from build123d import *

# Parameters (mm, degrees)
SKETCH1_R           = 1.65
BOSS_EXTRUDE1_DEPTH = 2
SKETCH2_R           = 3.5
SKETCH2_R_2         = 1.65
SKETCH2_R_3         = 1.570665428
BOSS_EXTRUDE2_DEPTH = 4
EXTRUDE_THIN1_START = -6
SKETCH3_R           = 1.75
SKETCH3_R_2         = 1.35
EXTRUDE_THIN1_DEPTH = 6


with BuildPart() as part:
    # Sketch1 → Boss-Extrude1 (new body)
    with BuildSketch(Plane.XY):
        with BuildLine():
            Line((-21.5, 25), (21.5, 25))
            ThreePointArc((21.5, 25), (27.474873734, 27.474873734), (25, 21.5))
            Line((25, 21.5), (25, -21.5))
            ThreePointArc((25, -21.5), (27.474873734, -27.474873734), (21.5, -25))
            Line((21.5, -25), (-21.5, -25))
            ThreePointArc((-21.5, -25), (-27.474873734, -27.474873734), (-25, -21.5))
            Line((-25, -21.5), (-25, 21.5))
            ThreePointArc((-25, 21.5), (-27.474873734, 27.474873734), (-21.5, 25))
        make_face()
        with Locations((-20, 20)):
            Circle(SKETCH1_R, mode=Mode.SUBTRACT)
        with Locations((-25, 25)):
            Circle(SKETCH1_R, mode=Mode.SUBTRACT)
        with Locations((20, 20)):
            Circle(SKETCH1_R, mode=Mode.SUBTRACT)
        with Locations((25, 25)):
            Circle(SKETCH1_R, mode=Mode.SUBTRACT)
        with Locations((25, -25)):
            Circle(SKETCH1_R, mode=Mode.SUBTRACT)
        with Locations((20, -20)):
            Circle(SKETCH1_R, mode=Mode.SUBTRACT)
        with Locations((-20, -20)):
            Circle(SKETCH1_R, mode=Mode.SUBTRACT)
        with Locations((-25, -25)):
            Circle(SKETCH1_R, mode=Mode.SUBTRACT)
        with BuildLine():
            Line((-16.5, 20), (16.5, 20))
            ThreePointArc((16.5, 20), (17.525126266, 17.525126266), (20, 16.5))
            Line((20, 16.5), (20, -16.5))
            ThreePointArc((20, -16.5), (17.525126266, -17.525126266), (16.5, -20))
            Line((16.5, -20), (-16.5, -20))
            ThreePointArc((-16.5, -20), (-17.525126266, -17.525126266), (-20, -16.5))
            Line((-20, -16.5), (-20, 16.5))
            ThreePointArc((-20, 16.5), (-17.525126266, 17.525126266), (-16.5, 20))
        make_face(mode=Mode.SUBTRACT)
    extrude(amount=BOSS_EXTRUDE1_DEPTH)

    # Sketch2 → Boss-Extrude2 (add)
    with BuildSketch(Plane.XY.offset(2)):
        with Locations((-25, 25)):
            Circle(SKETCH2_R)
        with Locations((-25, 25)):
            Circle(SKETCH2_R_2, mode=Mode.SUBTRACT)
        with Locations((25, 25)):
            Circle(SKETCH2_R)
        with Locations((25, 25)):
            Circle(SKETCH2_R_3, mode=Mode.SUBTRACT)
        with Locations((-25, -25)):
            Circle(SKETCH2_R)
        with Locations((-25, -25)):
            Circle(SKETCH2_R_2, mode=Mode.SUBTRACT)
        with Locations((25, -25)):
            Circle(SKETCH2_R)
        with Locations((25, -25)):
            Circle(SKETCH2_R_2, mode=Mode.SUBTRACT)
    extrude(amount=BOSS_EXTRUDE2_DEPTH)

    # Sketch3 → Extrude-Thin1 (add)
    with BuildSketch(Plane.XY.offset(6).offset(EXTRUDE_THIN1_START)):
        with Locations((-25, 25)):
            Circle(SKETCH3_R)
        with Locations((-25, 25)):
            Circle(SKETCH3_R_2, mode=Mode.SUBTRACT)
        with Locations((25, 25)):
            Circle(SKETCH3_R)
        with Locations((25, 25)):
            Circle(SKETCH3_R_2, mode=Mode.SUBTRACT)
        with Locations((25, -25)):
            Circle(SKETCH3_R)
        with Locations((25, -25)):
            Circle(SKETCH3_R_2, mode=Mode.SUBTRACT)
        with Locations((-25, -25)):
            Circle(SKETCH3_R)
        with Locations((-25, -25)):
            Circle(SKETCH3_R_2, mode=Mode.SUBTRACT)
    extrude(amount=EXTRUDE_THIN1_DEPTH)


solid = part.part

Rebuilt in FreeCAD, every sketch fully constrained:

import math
import FreeCAD as App
import Part
import Sketcher
from FreeCAD import Vector

doc = App.newDocument("Part")
body = doc.addObject("PartDesign::Body", "Body")

# Sketch on XY plane
sketch1 = body.newObject("Sketcher::SketchObject", "Sketch")
sketch1.AttachmentSupport = (doc.getObject("XY_Plane"), [""])
sketch1.MapMode = "FlatFace"
sketch1.addGeometry(Part.LineSegment(Vector(21.5, 25, 0), Vector(-21.5, 25, 0)), False)
sketch1.addGeometry(Part.ArcOfCircle(Part.Circle(Vector(-25, 25, 0), Vector(0, 0, 1), 3.5), math.radians(0), math.radians(270)), False)
sketch1.addGeometry(Part.LineSegment(Vector(-25, 21.5, 0), Vector(-25, -21.5, 0)), False)
sketch1.addGeometry(Part.ArcOfCircle(Part.Circle(Vector(-25, -25, 0), Vector(0, 0, 1), 3.5), math.radians(90), math.radians(360)), False)
sketch1.addGeometry(Part.LineSegment(Vector(-21.5, -25, 0), Vector(21.5, -25, 0)), False)
sketch1.addGeometry(Part.ArcOfCircle(Part.Circle(Vector(25, -25, 0), Vector(0, 0, 1), 3.5), math.radians(180), math.radians(450)), False)
sketch1.addGeometry(Part.LineSegment(Vector(25, -21.5, 0), Vector(25, 21.5, 0)), False)
sketch1.addGeometry(Part.ArcOfCircle(Part.Circle(Vector(25, 25, 0), Vector(0, 0, 1), 3.5), math.radians(-90), math.radians(180)), False)
sketch1.addGeometry(Part.Circle(Vector(25, -25, 0), Vector(0, 0, 1), 1.6), False)
sketch1.addGeometry(Part.Circle(Vector(20, -20, 0), Vector(0, 0, 1), 1.6), False)
sketch1.addGeometry(Part.Circle(Vector(-25, -25, 0), Vector(0, 0, 1), 1.6), False)
sketch1.addGeometry(Part.Circle(Vector(-20, -20, 0), Vector(0, 0, 1), 1.6), False)
sketch1.addGeometry(Part.Circle(Vector(20, 20, 0), Vector(0, 0, 1), 1.6), False)
sketch1.addGeometry(Part.Circle(Vector(25, 25, 0), Vector(0, 0, 1), 1.6), False)
sketch1.addGeometry(Part.LineSegment(Vector(-16.5, 20, 0), Vector(16.5, 20, 0)), False)
sketch1.addGeometry(Part.ArcOfCircle(Part.Circle(Vector(20, 20, 0), Vector(0, 0, 1), 3.5), math.radians(-180), math.radians(-90)), False)
sketch1.addGeometry(Part.LineSegment(Vector(20, 16.5, 0), Vector(20, -16.5, 0)), False)
sketch1.addGeometry(Part.ArcOfCircle(Part.Circle(Vector(20, -20, 0), Vector(0, 0, 1), 3.5), math.radians(90), math.radians(180)), False)
sketch1.addGeometry(Part.LineSegment(Vector(16.5, -20, 0), Vector(-16.5, -20, 0)), False)
sketch1.addGeometry(Part.ArcOfCircle(Part.Circle(Vector(-20, -20, 0), Vector(0, 0, 1), 3.5), math.radians(0), math.radians(90)), False)
sketch1.addGeometry(Part.LineSegment(Vector(-20, -16.5, 0), Vector(-20, 16.5, 0)), False)
sketch1.addGeometry(Part.ArcOfCircle(Part.Circle(Vector(-20, 20, 0), Vector(0, 0, 1), 3.5), math.radians(-90), math.radians(0)), False)
sketch1.addGeometry(Part.Circle(Vector(-20, 20, 0), Vector(0, 0, 1), 1.6), False)
sketch1.addGeometry(Part.Circle(Vector(-25, 25, 0), Vector(0, 0, 1), 1.6), False)
sketch1.addConstraint(Sketcher.Constraint("Coincident", 0, 2, 1, 1))
sketch1.addConstraint(Sketcher.Constraint("Coincident", 1, 2, 2, 1))
sketch1.addConstraint(Sketcher.Constraint("Coincident", 2, 2, 3, 1))
sketch1.addConstraint(Sketcher.Constraint("Coincident", 3, 2, 4, 1))
sketch1.addConstraint(Sketcher.Constraint("Coincident", 4, 2, 5, 1))
sketch1.addConstraint(Sketcher.Constraint("Coincident", 5, 2, 6, 1))
sketch1.addConstraint(Sketcher.Constraint("Coincident", 6, 2, 7, 1))
sketch1.addConstraint(Sketcher.Constraint("Coincident", 7, 2, 0, 1))
sketch1.addConstraint(Sketcher.Constraint("Coincident", 14, 2, 15, 1))
sketch1.addConstraint(Sketcher.Constraint("Coincident", 15, 2, 16, 1))
sketch1.addConstraint(Sketcher.Constraint("Coincident", 16, 2, 17, 1))
sketch1.addConstraint(Sketcher.Constraint("Coincident", 17, 2, 18, 1))
sketch1.addConstraint(Sketcher.Constraint("Coincident", 18, 2, 19, 1))
sketch1.addConstraint(Sketcher.Constraint("Coincident", 19, 2, 20, 1))
sketch1.addConstraint(Sketcher.Constraint("Coincident", 20, 2, 21, 1))
sketch1.addConstraint(Sketcher.Constraint("Coincident", 21, 2, 14, 1))
sketch1.addConstraint(Sketcher.Constraint("Horizontal", 0))
sketch1.addConstraint(Sketcher.Constraint("Vertical", 2))
sketch1.addConstraint(Sketcher.Constraint("Horizontal", 4))
sketch1.addConstraint(Sketcher.Constraint("Vertical", 6))
sketch1.addConstraint(Sketcher.Constraint("Horizontal", 14))
sketch1.addConstraint(Sketcher.Constraint("Vertical", 16))
sketch1.addConstraint(Sketcher.Constraint("Horizontal", 18))
sketch1.addConstraint(Sketcher.Constraint("Vertical", 20))
sketch1.addConstraint(Sketcher.Constraint("Coincident", 8, 3, 5, 3))
sketch1.addConstraint(Sketcher.Constraint("Coincident", 10, 3, 3, 3))
sketch1.addConstraint(Sketcher.Constraint("Coincident", 13, 3, 7, 3))
sketch1.addConstraint(Sketcher.Constraint("Coincident", 15, 3, 12, 3))
sketch1.addConstraint(Sketcher.Constraint("Coincident", 17, 3, 9, 3))
sketch1.addConstraint(Sketcher.Constraint("Coincident", 19, 3, 11, 3))
sketch1.addConstraint(Sketcher.Constraint("Coincident", 22, 3, 21, 3))
sketch1.addConstraint(Sketcher.Constraint("Coincident", 23, 3, 1, 3))
sketch1.addConstraint(Sketcher.Constraint("Equal", 1, 3))
sketch1.addConstraint(Sketcher.Constraint("Equal", 3, 5))
sketch1.addConstraint(Sketcher.Constraint("Equal", 5, 7))
sketch1.addConstraint(Sketcher.Constraint("Equal", 8, 9))
sketch1.addConstraint(Sketcher.Constraint("Equal", 9, 10))
sketch1.addConstraint(Sketcher.Constraint("Equal", 10, 11))
sketch1.addConstraint(Sketcher.Constraint("Equal", 11, 12))
sketch1.addConstraint(Sketcher.Constraint("Equal", 12, 13))
sketch1.addConstraint(Sketcher.Constraint("Equal", 7, 15))
sketch1.addConstraint(Sketcher.Constraint("Equal", 15, 17))
sketch1.addConstraint(Sketcher.Constraint("Equal", 17, 19))
sketch1.addConstraint(Sketcher.Constraint("Equal", 19, 21))
sketch1.addConstraint(Sketcher.Constraint("Equal", 13, 22))
sketch1.addConstraint(Sketcher.Constraint("Equal", 22, 23))
sketch1.addConstraint(Sketcher.Constraint("Symmetric", 1, 3, 5, 3, -1, 1))
sketch1.addConstraint(Sketcher.Constraint("Symmetric", 3, 3, 7, 3, -1, 1))
sketch1.addConstraint(Sketcher.Constraint("Symmetric", 11, 3, 12, 3, -1, 1))
sketch1.addConstraint(Sketcher.Constraint("Symmetric", 9, 3, 21, 3, -1, 1))
sketch1.addConstraint(Sketcher.Constraint("Symmetric", 3, 3, 5, 3, -2))
sketch1.addConstraint(Sketcher.Constraint("Symmetric", 9, 3, 11, 3, -2))
sketch1.addConstraint(Sketcher.Constraint("Horizontal", 23, 3, 0, 2))
sketch1.addConstraint(Sketcher.Constraint("Horizontal", 10, 3, 3, 2))
sketch1.addConstraint(Sketcher.Constraint("Horizontal", 22, 3, 14, 2))
sketch1.addConstraint(Sketcher.Constraint("Horizontal", 19, 3, 17, 2))
sketch1.addConstraint(Sketcher.Constraint("Vertical", 23, 3, 1, 2))
sketch1.addConstraint(Sketcher.Constraint("Vertical", 13, 3, 5, 2))
sketch1.addConstraint(Sketcher.Constraint("Vertical", 17, 3, 15, 2))
sketch1.addConstraint(Sketcher.Constraint("Vertical", 22, 3, 19, 2))
sketch1.addConstraint(Sketcher.Constraint("Equal", 4, 2))
sketch1.addConstraint(Sketcher.Constraint("Equal", 18, 16))
sketch1.addConstraint(Sketcher.Constraint("Diameter", 8, 3.3))
sketch1.addConstraint(Sketcher.Constraint("Radius", 1, 3.5))
sketch1.addConstraint(Sketcher.Constraint("DistanceX", 0, 2, 0, 1, 43.0))
sketch1.addConstraint(Sketcher.Constraint("DistanceX", 14, 1, 14, 2, 33.0))
pad1 = body.newObject("PartDesign::Pad", "Pad")
pad1.Profile = sketch1
pad1.Length = 2

# Sketch on XY plane
sketch2 = body.newObject("Sketcher::SketchObject", "Sketch001")
sketch2.AttachmentSupport = (doc.getObject("XY_Plane"), [""])
sketch2.MapMode = "FlatFace"
sketch2.AttachmentOffset = App.Placement(Vector(0, 0, 2), App.Rotation())
sketch2.addGeometry(Part.Circle(Vector(-25, 25, 0), Vector(0, 0, 1), 3.5), False)
sketch2.addGeometry(Part.Circle(Vector(-25, 25, 0), Vector(0, 0, 1), 1.6), False)
sketch2.addGeometry(Part.Circle(Vector(25, 25, 0), Vector(0, 0, 1), 3.5), False)
sketch2.addGeometry(Part.Circle(Vector(25, 25, 0), Vector(0, 0, 1), 1.6), False)
sketch2.addGeometry(Part.Circle(Vector(-25, -25, 0), Vector(0, 0, 1), 3.5), False)
sketch2.addGeometry(Part.Circle(Vector(-25, -25, 0), Vector(0, 0, 1), 1.6), False)
sketch2.addGeometry(Part.Circle(Vector(25, -25, 0), Vector(0, 0, 1), 3.5), False)
sketch2.addGeometry(Part.Circle(Vector(25, -25, 0), Vector(0, 0, 1), 1.6), False)
sketch2.addConstraint(Sketcher.Constraint("Coincident", 1, 3, 0, 3))
sketch2.addConstraint(Sketcher.Constraint("Coincident", 3, 3, 2, 3))
sketch2.addConstraint(Sketcher.Constraint("Coincident", 5, 3, 4, 3))
sketch2.addConstraint(Sketcher.Constraint("Coincident", 7, 3, 6, 3))
sketch2.addConstraint(Sketcher.Constraint("Equal", 0, 2))
sketch2.addConstraint(Sketcher.Constraint("Equal", 2, 4))
sketch2.addConstraint(Sketcher.Constraint("Equal", 1, 5))
sketch2.addConstraint(Sketcher.Constraint("Equal", 4, 6))
sketch2.addConstraint(Sketcher.Constraint("Equal", 5, 7))
sketch2.addConstraint(Sketcher.Constraint("Symmetric", 2, 3, 4, 3, -1, 1))
sketch2.addConstraint(Sketcher.Constraint("Symmetric", 0, 3, 6, 3, -1, 1))
sketch2.addConstraint(Sketcher.Constraint("Symmetric", 0, 3, 2, 3, -2))
sketch2.addConstraint(Sketcher.Constraint("Diameter", 0, 7.0))
sketch2.addConstraint(Sketcher.Constraint("Diameter", 1, 3.3))
sketch2.addConstraint(Sketcher.Constraint("DistanceX", 0, 3, -1, 1, 25.0))
sketch2.addConstraint(Sketcher.Constraint("DistanceY", -1, 1, 0, 3, 25.0))
sketch2.addConstraint(Sketcher.Constraint("Diameter", 3, 3.141331))
pad2 = body.newObject("PartDesign::Pad", "Pad001")
pad2.Profile = sketch2
pad2.Length = 4

# Sketch on XY plane
sketch3 = body.newObject("Sketcher::SketchObject", "Sketch002")
sketch3.AttachmentSupport = (doc.getObject("XY_Plane"), [""])
sketch3.MapMode = "FlatFace"
sketch3.addGeometry(Part.Circle(Vector(-25, 25, 0), Vector(0, 0, 1), 1.8), False)
sketch3.addGeometry(Part.Circle(Vector(-25, 25, 0), Vector(0, 0, 1), 1.4), False)
sketch3.addGeometry(Part.Circle(Vector(25, 25, 0), Vector(0, 0, 1), 1.8), False)
sketch3.addGeometry(Part.Circle(Vector(25, 25, 0), Vector(0, 0, 1), 1.4), False)
sketch3.addGeometry(Part.Circle(Vector(25, -25, 0), Vector(0, 0, 1), 1.8), False)
sketch3.addGeometry(Part.Circle(Vector(25, -25, 0), Vector(0, 0, 1), 1.4), False)
sketch3.addGeometry(Part.Circle(Vector(-25, -25, 0), Vector(0, 0, 1), 1.8), False)
sketch3.addGeometry(Part.Circle(Vector(-25, -25, 0), Vector(0, 0, 1), 1.4), False)
sketch3.addConstraint(Sketcher.Constraint("Coincident", 1, 3, 0, 3))
sketch3.addConstraint(Sketcher.Constraint("Coincident", 3, 3, 2, 3))
sketch3.addConstraint(Sketcher.Constraint("Coincident", 5, 3, 4, 3))
sketch3.addConstraint(Sketcher.Constraint("Coincident", 7, 3, 6, 3))
sketch3.addConstraint(Sketcher.Constraint("Equal", 0, 2))
sketch3.addConstraint(Sketcher.Constraint("Equal", 1, 3))
sketch3.addConstraint(Sketcher.Constraint("Equal", 2, 4))
sketch3.addConstraint(Sketcher.Constraint("Equal", 3, 5))
sketch3.addConstraint(Sketcher.Constraint("Equal", 4, 6))
sketch3.addConstraint(Sketcher.Constraint("Equal", 5, 7))
sketch3.addConstraint(Sketcher.Constraint("Symmetric", 0, 3, 4, 3, -1, 1))
sketch3.addConstraint(Sketcher.Constraint("Symmetric", 2, 3, 6, 3, -1, 1))
sketch3.addConstraint(Sketcher.Constraint("Symmetric", 0, 3, 2, 3, -2))
sketch3.addConstraint(Sketcher.Constraint("Diameter", 0, 3.5))
sketch3.addConstraint(Sketcher.Constraint("Diameter", 1, 2.7))
sketch3.addConstraint(Sketcher.Constraint("DistanceX", 0, 3, -1, 1, 25.0))
sketch3.addConstraint(Sketcher.Constraint("DistanceY", -1, 1, 0, 3, 25.0))
pad3 = body.newObject("PartDesign::Pad", "Pad002")
pad3.Profile = sketch3
pad3.Length = 6

doc.recompute()
